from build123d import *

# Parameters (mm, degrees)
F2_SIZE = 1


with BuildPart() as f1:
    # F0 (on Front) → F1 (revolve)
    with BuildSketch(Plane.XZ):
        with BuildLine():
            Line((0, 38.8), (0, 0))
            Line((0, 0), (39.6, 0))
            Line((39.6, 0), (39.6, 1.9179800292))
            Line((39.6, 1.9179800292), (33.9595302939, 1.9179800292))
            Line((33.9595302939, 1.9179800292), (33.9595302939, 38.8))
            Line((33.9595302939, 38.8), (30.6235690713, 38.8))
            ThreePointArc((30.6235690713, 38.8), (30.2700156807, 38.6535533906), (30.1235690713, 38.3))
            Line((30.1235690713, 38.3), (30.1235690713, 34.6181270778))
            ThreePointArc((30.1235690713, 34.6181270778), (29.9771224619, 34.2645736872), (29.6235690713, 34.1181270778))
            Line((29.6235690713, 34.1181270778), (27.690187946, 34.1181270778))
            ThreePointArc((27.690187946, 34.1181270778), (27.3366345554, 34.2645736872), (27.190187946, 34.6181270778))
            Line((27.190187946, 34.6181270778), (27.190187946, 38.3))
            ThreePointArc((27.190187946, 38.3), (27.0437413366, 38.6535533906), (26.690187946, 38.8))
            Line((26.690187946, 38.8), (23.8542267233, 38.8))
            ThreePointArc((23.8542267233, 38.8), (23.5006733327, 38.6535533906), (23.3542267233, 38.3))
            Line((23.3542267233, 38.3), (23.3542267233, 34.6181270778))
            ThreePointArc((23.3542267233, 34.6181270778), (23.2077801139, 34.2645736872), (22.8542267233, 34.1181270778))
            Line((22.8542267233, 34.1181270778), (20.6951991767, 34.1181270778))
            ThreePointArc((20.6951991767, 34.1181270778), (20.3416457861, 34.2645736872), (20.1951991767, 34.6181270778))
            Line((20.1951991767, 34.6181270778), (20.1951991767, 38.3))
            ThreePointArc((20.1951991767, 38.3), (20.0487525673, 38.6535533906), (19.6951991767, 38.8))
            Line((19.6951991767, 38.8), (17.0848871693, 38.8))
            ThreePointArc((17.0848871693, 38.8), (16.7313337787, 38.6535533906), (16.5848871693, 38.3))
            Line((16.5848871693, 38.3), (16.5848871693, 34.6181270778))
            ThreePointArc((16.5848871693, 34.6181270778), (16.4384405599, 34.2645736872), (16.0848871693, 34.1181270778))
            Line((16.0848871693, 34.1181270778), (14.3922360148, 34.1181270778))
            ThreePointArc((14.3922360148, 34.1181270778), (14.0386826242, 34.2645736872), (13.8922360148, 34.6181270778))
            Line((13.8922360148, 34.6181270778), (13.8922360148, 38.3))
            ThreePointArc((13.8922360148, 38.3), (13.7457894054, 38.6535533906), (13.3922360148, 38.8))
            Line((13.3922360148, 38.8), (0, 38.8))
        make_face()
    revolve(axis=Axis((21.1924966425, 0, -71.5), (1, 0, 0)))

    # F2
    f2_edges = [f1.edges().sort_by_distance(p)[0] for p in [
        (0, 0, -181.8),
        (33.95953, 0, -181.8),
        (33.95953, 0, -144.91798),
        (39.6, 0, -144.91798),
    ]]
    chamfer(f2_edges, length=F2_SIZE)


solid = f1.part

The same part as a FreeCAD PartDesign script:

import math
import FreeCAD as App
import Part
import Sketcher
Q = App.Units.Quantity


def edges_at(feature, points):
    """Names of the edges that pass closest to the given points."""
    edges = feature.Shape.Edges
    near = lambda p: min(range(len(edges)), key=lambda i: edges[i].distToShape(Part.Vertex(*p))[0])
    return sorted({f"Edge{near(p) + 1}" for p in points})

doc = App.newDocument("Part")
body = doc.addObject("PartDesign::Body", "Body")

# Sketch on XZ plane
sketch1 = doc.addObject("Sketcher::SketchObject", "Sketch")
body.addObject(sketch1)
sketch1.AttachmentSupport = (doc.XZ_Plane, [""])
sketch1.MapMode = "FlatFace"
sketch1.addGeometry([
    Part.LineSegment(App.Vector(0, 38.8, 0), App.Vector(0, 0, 0)),  # 0
    Part.LineSegment(App.Vector(0, 0, 0), App.Vector(39.6, 0, 0)),  # 1
    Part.LineSegment(App.Vector(39.6, 0, 0), App.Vector(39.6, 1.91798, 0)),  # 2
    Part.LineSegment(App.Vector(39.6, 1.91798, 0), App.Vector(33.95953, 1.91798, 0)),  # 3
    Part.LineSegment(App.Vector(33.95953, 1.91798, 0), App.Vector(33.95953, 38.8, 0)),  # 4
    Part.LineSegment(App.Vector(33.95953, 38.8, 0), App.Vector(30.623569, 38.8, 0)),  # 5
    Part.ArcOfCircle(Part.Circle(App.Vector(30.623569, 38.3, 0), App.Vector(0, 0, 1), 0.5), math.radians(90), math.radians(180)),  # 6
    Part.LineSegment(App.Vector(30.123569, 38.3, 0), App.Vector(30.123569, 34.618127, 0)),  # 7
    Part.ArcOfCircle(Part.Circle(App.Vector(29.623569, 34.618127, 0), App.Vector(0, 0, 1), 0.5), math.radians(-90), math.radians(0)),  # 8
    Part.LineSegment(App.Vector(29.623569, 34.118127, 0), App.Vector(27.690188, 34.118127, 0)),  # 9
    Part.ArcOfCircle(Part.Circle(App.Vector(27.690188, 34.618127, 0), App.Vector(0, 0, 1), 0.5), math.radians(180), math.radians(270)),  # 10
    Part.LineSegment(App.Vector(27.190188, 34.618127, 0), App.Vector(27.190188, 38.3, 0)),  # 11
    Part.ArcOfCircle(Part.Circle(App.Vector(26.690188, 38.3, 0), App.Vector(0, 0, 1), 0.5), math.radians(0), math.radians(90)),  # 12
    Part.LineSegment(App.Vector(26.690188, 38.8, 0), App.Vector(23.854227, 38.8, 0)),  # 13
    Part.ArcOfCircle(Part.Circle(App.Vector(23.854227, 38.3, 0), App.Vector(0, 0, 1), 0.5), math.radians(90), math.radians(180)),  # 14
    Part.LineSegment(App.Vector(23.354227, 38.3, 0), App.Vector(23.354227, 34.618127, 0)),  # 15
    Part.ArcOfCircle(Part.Circle(App.Vector(22.854227, 34.618127, 0), App.Vector(0, 0, 1), 0.5), math.radians(-90), math.radians(0)),  # 16
    Part.LineSegment(App.Vector(22.854227, 34.118127, 0), App.Vector(20.695199, 34.118127, 0)),  # 17
    Part.ArcOfCircle(Part.Circle(App.Vector(20.695199, 34.618127, 0), App.Vector(0, 0, 1), 0.5), math.radians(180), math.radians(270)),  # 18
    Part.LineSegment(App.Vector(20.195199, 34.618127, 0), App.Vector(20.195199, 38.3, 0)),  # 19
    Part.ArcOfCircle(Part.Circle(App.Vector(19.695199, 38.3, 0), App.Vector(0, 0, 1), 0.5), math.radians(0), math.radians(90)),  # 20
    Part.LineSegment(App.Vector(19.695199, 38.8, 0), App.Vector(17.084887, 38.8, 0)),  # 21
    Part.ArcOfCircle(Part.Circle(App.Vector(17.084887, 38.3, 0), App.Vector(0, 0, 1), 0.5), math.radians(90), math.radians(180)),  # 22
    Part.LineSegment(App.Vector(16.584887, 38.3, 0), App.Vector(16.584887, 34.618127, 0)),  # 23
    Part.ArcOfCircle(Part.Circle(App.Vector(16.084887, 34.618127, 0), App.Vector(0, 0, 1), 0.5), math.radians(-90), math.radians(0)),  # 24
    Part.LineSegment(App.Vector(16.084887, 34.118127, 0), App.Vector(14.392236, 34.118127, 0)),  # 25
    Part.ArcOfCircle(Part.Circle(App.Vector(14.392236, 34.618127, 0), App.Vector(0, 0, 1), 0.5), math.radians(180), math.radians(270)),  # 26
    Part.LineSegment(App.Vector(13.892236, 34.618127, 0), App.Vector(13.892236, 38.3, 0)),  # 27
    Part.ArcOfCircle(Part.Circle(App.Vector(13.392236, 38.3, 0), App.Vector(0, 0, 1), 0.5), math.radians(0), math.radians(90)),  # 28
    Part.LineSegment(App.Vector(13.392236, 38.8, 0), App.Vector(0, 38.8, 0)),  # 29
], False)
sketch1.addGeometry(Part.LineSegment(App.Vector(0, -71.5, 0), App.Vector(39.6, -71.5, 0)), True)  # axis
sketch1.addConstraint([
    Sketcher.Constraint("Coincident", 0, 2, 1, 1),
    Sketcher.Constraint("Coincident", 1, 2, 2, 1),
    Sketcher.Constraint("Coincident", 2, 2, 3, 1),
    Sketcher.Constraint("Coincident", 3, 2, 4, 1),
    Sketcher.Constraint("Coincident", 4, 2, 5, 1),
    Sketcher.Constraint("Tangent", 5, 2, 6, 1),
    Sketcher.Constraint("Tangent", 6, 2, 7, 1),
    Sketcher.Constraint("Tangent", 7, 2, 8, 2),
    Sketcher.Constraint("Tangent", 8, 1, 9, 1),
    Sketcher.Constraint("Tangent", 9, 2, 10, 2),
    Sketcher.Constraint("Tangent", 10, 1, 11, 1),
    Sketcher.Constraint("Tangent", 11, 2, 12, 1),
    Sketcher.Constraint("Tangent", 12, 2, 13, 1),
    Sketcher.Constraint("Tangent", 13, 2, 14, 1),
    Sketcher.Constraint("Tangent", 14, 2, 15, 1),
    Sketcher.Constraint("Tangent", 15, 2, 16, 2),
    Sketcher.Constraint("Tangent", 16, 1, 17, 1),
    Sketcher.Constraint("Tangent", 17, 2, 18, 2),
    Sketcher.Constraint("Tangent", 18, 1, 19, 1),
    Sketcher.Constraint("Tangent", 19, 2, 20, 1),
    Sketcher.Constraint("Tangent", 20, 2, 21, 1),
    Sketcher.Constraint("Tangent", 21, 2, 22, 1),
    Sketcher.Constraint("Tangent", 22, 2, 23, 1),
    Sketcher.Constraint("Tangent", 23, 2, 24, 2),
    Sketcher.Constraint("Tangent", 24, 1, 25, 1),
    Sketcher.Constraint("Tangent", 25, 2, 26, 2),
    Sketcher.Constraint("Tangent", 26, 1, 27, 1),
    Sketcher.Constraint("Tangent", 27, 2, 28, 1),
    Sketcher.Constraint("Tangent", 28, 2, 29, 1),
    Sketcher.Constraint("Coincident", 29, 2, 0, 1),
    Sketcher.Constraint("Vertical", 0),
    Sketcher.Constraint("Horizontal", 1),
    Sketcher.Constraint("Vertical", 2),
    Sketcher.Constraint("Horizontal", 3),
    Sketcher.Constraint("Vertical", 4),
    Sketcher.Constraint("Horizontal", 5),
    Sketcher.Constraint("Vertical", 7),
    Sketcher.Constraint("Horizontal", 9),
    Sketcher.Constraint("Vertical", 11),
    Sketcher.Constraint("Horizontal", 13),
    Sketcher.Constraint("Vertical", 15),
    Sketcher.Constraint("Horizontal", 17),
    Sketcher.Constraint("Vertical", 19),
    Sketcher.Constraint("Horizontal", 21),
    Sketcher.Constraint("Vertical", 23),
    Sketcher.Constraint("Horizontal", 25),
    Sketcher.Constraint("Vertical", 27),
    Sketcher.Constraint("Horizontal", 29),
    Sketcher.Constraint("Horizontal", 30),
    Sketcher.Constraint("Coincident", 0, 2, -1, 1),
    Sketcher.Constraint("Equal", 6, 8),
    Sketcher.Constraint("Equal", 8, 10),
    Sketcher.Constraint("Equal", 10, 12),
    Sketcher.Constraint("Equal", 12, 14),
    Sketcher.Constraint("Equal", 14, 16),
    Sketcher.Constraint("Equal", 16, 18),
    Sketcher.Constraint("Equal", 18, 20),
    Sketcher.Constraint("Equal", 20, 22),
    Sketcher.Constraint("Equal", 22, 24),
    Sketcher.Constraint("Equal", 24, 26),
    Sketcher.Constraint("Equal", 26, 28),
    Sketcher.Constraint("PointOnObject", 30, 1, -2),
    Sketcher.Constraint("Horizontal", 6, 3, 12, 3),
    Sketcher.Constraint("Horizontal", 10, 3, 16, 3),
    Sketcher.Constraint("Horizontal", 14, 3, 20, 3),
    Sketcher.Constraint("Horizontal", 18, 3, 24, 3),
    Sketcher.Constraint("Horizontal", 22, 3, 28, 3),
    Sketcher.Constraint("Vertical", 2, 2, 30, 2),
    Sketcher.Constraint("Radius", 6, Q("0.5 mm")),
    Sketcher.Constraint("DistanceX", 1, 1, 1, 2, Q("39.6 mm")),
    Sketcher.Constraint("DistanceY", 0, 2, 0, 1, Q("38.8 mm")),
    Sketcher.Constraint("DistanceY", 30, 1, -1, 1, Q("71.5 mm")),
    Sketcher.Constraint("DistanceX", 3, 2, 3, 1, Q("5.64047 mm")),
    Sketcher.Constraint("DistanceX", 5, 2, 5, 1, Q("3.335961 mm")),
    Sketcher.Constraint("DistanceX", 9, 2, 9, 1, Q("1.933381 mm")),
    Sketcher.Constraint("DistanceX", 13, 2, 13, 1, Q("2.835961 mm")),
    Sketcher.Constraint("DistanceX", 25, 2, 25, 1, Q("1.692651 mm")),
    Sketcher.Constraint("DistanceY", 2, 1, 2, 2, Q("1.91798 mm")),
    Sketcher.Constraint("DistanceX", -1, 1, 18, 3, Q("20.695199 mm")),
    Sketcher.Constraint("DistanceX", 22, 3, 12, 3, Q("9.605301 mm")),
    Sketcher.Constraint("DistanceY", 7, 2, 7, 1, Q("3.681873 mm")),
])
revolution = doc.addObject("PartDesign::Revolution", "Revolution")
body.addObject(revolution)
revolution.Profile = sketch1
revolution.ReferenceAxis = (sketch1, ["Axis0"])
revolution.Angle = 360
doc.recompute()

chamfer = doc.addObject("PartDesign::Chamfer", "Chamfer")
body.addObject(chamfer)
chamfer.Base = (revolution, edges_at(revolution, [
    (0, 0, -181.8),
    (33.96, 0, -181.8),
    (33.96, 0, -144.918),
    (39.6, 0, -144.918),
]))
chamfer.Size = 1

doc.recompute()
